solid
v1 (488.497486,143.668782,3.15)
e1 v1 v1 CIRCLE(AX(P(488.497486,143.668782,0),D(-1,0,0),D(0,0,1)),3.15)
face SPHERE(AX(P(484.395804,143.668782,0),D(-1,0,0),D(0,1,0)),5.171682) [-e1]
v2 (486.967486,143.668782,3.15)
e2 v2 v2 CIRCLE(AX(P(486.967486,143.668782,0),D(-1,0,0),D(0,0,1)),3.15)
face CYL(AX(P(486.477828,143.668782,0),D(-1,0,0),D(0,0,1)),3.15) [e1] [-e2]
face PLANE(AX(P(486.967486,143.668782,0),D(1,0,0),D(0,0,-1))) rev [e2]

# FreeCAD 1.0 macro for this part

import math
import FreeCAD as App
import Part
import Sketcher

V = App.Vector
Q = App.Units.Quantity

doc = App.newDocument("Part")
body = doc.addObject("PartDesign::Body", "Body")

# Sketch on XY plane
sketch1 = doc.addObject("Sketcher::SketchObject", "Sketch")
body.addObject(sketch1)
sketch1.AttachmentSupport = (doc.XY_Plane, [""])
sketch1.MapMode = "FlatFace"
sketch1.addGeometry([
    Part.LineSegment(V(487, 146.8, 0), V(487, 143.7, 0)),
    Part.LineSegment(V(487, 143.7, 0), V(489.6, 143.7, 0)),
    Part.ArcOfCircle(Part.Circle(V(484.4, 143.7, 0), V(0, 0, 1), 5.2), math.radians(0), math.radians(38)),
    Part.LineSegment(V(488.5, 146.8, 0), V(487, 146.8, 0)),
], False)
sketch1.addGeometry(Part.LineSegment(V(484.4, 143.7, 0), V(489.6, 143.7, 0)), True)  # axis
sketch1.addConstraint([
    Sketcher.Constraint("Coincident", 0, 2, 1, 1),
    Sketcher.Constraint("Coincident", 1, 2, 2, 1),
    Sketcher.Constraint("Coincident", 2, 2, 3, 1),
    Sketcher.Constraint("Coincident", 3, 2, 0, 1),
    Sketcher.Constraint("Vertical", 0),
    Sketcher.Constraint("Horizontal", 1),
    Sketcher.Constraint("Horizontal", 3),
    Sketcher.Constraint("Horizontal", 4),
    Sketcher.Constraint("Coincident", 4, 1, 2, 3),
    Sketcher.Constraint("Coincident", 4, 2, 1, 2),
    Sketcher.Constraint("DistanceX", 1, 1, 1, 2, Q("2.6 mm")),
    Sketcher.Constraint("DistanceX", 3, 2, 3, 1, Q("1.53 mm")),
    Sketcher.Constraint("DistanceY", 0, 2, 0, 1, Q("3.15 mm")),
    Sketcher.Constraint("DistanceX", -1, 1, 2, 3, Q("484.395804 mm")),
    Sketcher.Constraint("DistanceY", -1, 1, 2, 3, Q("143.668782 mm")),
])
revolution = doc.addObject("PartDesign::Revolution", "Revolution")
body.addObject(revolution)
revolution.Profile = sketch1
revolution.ReferenceAxis = (sketch1, ["Axis0"])
revolution.Angle = 360

doc.recompute()
